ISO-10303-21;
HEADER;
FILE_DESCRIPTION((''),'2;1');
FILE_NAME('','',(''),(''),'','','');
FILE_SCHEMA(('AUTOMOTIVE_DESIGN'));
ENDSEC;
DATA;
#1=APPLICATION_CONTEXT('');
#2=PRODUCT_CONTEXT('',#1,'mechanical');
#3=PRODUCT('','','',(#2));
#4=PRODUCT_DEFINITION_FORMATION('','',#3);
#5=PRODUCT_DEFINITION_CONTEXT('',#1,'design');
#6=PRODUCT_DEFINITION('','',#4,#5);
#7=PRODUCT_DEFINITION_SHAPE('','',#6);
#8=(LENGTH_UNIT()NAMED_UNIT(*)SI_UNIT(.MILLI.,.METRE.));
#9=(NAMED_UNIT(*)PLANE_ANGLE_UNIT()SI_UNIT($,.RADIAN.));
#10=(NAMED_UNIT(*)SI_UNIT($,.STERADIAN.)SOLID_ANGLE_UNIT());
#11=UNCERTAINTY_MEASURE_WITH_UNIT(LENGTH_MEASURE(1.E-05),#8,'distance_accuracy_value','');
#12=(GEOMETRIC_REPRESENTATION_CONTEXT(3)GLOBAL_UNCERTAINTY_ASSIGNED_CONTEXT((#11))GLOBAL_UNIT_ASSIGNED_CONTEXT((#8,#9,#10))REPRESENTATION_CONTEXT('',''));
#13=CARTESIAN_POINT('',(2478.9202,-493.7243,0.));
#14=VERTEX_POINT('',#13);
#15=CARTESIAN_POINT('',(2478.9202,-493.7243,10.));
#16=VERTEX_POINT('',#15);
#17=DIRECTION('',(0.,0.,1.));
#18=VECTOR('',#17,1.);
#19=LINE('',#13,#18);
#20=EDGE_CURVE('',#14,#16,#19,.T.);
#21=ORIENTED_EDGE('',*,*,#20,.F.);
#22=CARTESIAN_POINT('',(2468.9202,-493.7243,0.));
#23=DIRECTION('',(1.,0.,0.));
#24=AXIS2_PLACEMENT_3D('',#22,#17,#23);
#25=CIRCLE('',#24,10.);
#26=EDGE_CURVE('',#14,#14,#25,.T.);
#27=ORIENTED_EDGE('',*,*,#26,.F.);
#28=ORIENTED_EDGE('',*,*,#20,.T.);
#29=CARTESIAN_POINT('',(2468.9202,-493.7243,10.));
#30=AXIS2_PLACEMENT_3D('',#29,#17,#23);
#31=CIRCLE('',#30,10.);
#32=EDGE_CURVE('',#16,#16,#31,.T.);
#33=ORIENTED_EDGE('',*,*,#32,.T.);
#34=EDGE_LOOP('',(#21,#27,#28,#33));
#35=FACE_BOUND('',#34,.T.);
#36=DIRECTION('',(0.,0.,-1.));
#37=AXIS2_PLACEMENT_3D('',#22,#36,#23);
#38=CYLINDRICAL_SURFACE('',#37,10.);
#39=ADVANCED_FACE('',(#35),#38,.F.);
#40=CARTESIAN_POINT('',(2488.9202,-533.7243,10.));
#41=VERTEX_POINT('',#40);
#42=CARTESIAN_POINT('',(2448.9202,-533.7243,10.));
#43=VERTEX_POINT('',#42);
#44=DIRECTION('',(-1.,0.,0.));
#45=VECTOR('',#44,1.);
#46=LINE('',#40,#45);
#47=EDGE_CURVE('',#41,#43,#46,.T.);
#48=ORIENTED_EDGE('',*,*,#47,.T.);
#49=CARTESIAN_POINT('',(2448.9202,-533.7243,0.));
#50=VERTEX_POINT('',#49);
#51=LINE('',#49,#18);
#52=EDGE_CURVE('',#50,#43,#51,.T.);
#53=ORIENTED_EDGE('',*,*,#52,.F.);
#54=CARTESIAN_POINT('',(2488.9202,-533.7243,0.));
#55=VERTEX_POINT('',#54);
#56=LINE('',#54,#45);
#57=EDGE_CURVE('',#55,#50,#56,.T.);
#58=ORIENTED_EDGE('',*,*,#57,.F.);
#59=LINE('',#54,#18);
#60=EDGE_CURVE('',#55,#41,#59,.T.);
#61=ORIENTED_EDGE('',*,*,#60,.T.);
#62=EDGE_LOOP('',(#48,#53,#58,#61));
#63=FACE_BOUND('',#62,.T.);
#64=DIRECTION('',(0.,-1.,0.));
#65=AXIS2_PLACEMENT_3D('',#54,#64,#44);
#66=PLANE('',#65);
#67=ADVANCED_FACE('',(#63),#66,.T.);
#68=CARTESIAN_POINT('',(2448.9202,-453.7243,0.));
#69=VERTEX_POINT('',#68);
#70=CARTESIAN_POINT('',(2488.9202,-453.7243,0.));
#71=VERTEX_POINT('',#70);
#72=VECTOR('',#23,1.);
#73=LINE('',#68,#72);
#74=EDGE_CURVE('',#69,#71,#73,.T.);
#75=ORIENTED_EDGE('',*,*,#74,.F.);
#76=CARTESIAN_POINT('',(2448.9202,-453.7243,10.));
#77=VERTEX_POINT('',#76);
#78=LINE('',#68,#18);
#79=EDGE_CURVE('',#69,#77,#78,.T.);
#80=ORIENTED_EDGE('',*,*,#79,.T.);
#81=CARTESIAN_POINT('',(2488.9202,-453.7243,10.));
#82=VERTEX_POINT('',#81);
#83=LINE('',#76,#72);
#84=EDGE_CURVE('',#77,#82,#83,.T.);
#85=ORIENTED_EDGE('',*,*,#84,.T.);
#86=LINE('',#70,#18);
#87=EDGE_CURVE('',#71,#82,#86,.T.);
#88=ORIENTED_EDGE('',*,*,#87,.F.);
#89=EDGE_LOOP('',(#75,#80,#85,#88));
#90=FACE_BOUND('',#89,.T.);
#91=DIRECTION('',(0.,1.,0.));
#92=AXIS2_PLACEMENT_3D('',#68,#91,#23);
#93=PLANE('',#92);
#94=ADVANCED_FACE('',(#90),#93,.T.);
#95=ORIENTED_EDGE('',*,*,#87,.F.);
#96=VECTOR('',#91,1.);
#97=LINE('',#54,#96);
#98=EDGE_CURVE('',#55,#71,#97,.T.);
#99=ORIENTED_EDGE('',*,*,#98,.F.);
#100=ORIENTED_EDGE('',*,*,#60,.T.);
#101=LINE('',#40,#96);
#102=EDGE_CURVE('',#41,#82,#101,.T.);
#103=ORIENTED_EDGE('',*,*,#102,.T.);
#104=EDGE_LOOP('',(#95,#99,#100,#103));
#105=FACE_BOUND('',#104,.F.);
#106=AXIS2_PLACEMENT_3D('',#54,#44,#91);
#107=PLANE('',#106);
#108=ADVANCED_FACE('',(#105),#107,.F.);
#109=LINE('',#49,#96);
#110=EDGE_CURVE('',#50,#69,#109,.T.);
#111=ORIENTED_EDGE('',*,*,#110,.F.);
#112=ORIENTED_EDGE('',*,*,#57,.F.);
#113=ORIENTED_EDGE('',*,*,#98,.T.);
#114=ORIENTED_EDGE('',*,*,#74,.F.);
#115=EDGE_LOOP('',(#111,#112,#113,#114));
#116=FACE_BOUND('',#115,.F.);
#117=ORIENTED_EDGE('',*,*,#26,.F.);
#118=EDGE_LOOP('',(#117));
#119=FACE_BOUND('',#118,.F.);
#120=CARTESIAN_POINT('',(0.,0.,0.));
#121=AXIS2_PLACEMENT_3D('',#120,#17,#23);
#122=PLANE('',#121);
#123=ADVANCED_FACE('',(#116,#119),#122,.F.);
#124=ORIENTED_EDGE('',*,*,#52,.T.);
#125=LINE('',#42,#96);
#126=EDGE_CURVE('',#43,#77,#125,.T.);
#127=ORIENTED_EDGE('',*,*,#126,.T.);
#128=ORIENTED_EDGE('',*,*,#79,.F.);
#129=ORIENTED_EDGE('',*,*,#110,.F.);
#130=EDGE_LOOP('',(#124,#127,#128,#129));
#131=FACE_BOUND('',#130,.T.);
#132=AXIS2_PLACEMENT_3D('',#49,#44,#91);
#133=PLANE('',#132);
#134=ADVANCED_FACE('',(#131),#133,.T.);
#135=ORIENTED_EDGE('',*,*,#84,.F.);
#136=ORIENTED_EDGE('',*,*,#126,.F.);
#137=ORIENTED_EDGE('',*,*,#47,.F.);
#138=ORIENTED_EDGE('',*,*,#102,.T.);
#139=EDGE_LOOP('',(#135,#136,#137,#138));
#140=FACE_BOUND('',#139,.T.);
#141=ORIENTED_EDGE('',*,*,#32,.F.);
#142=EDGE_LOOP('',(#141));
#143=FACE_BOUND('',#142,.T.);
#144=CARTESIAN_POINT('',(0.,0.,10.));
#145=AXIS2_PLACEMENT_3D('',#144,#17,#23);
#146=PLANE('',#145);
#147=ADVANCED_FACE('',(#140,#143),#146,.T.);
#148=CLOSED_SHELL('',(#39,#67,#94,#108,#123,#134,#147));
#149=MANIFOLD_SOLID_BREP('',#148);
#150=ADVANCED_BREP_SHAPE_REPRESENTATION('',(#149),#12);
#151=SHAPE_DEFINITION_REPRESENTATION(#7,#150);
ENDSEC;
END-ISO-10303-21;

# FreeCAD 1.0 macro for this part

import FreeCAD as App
import Part
import Sketcher
from FreeCAD import Vector
Q = App.Units.Quantity

doc = App.newDocument("Part")
params = doc.addObject("Spreadsheet::Sheet", "Params")
for row, (alias, value) in enumerate([
    ("sketch1_diameter", "20 mm"),
    ("sketch1_width", "40 mm"),
    ("sketch1_height", "80 mm"),
    ("pad1_length", "10 mm"),
], start=1):
    params.set(f"A{row}", alias)
    params.set(f"B{row}", "=" + value)
    params.setAlias(f"B{row}", alias)

body = doc.addObject("PartDesign::Body", "Body")

sketch1 = body.newObject("Sketcher::SketchObject", "Sketch")
sketch1.AttachmentSupport = (doc.getObject("XY_Plane"), [""])
sketch1.MapMode = "FlatFace"
sketch1.addGeometry([
    Part.LineSegment(Vector(2448.9202, -533.7243, 0), Vector(2488.9202, -533.7243, 0)),
    Part.LineSegment(Vector(2488.9202, -533.7243, 0), Vector(2488.9202, -453.7243, 0)),
    Part.LineSegment(Vector(2488.9202, -453.7243, 0), Vector(2448.9202, -453.7243, 0)),
    Part.LineSegment(Vector(2448.9202, -453.7243, 0), Vector(2448.9202, -533.7243, 0)),
    Part.Circle(Vector(2468.9202, -493.7243, 0), Vector(0, 0, 1), 10),
], False)
sketch1.addConstraint([
    Sketcher.Constraint("Coincident", 0, 2, 1, 1),
    Sketcher.Constraint("Coincident", 1, 2, 2, 1),
    Sketcher.Constraint("Coincident", 2, 2, 3, 1),
    Sketcher.Constraint("Coincident", 3, 2, 0, 1),
    Sketcher.Constraint("Horizontal", 0),
    Sketcher.Constraint("Vertical", 1),
    Sketcher.Constraint("Horizontal", 2),
    Sketcher.Constraint("Vertical", 3),
    Sketcher.Constraint("Diameter", 4, Q("20 mm")),
    Sketcher.Constraint("DistanceX", 0, 1, 0, 2, Q("40 mm")),
    Sketcher.Constraint("DistanceY", 1, 1, 1, 2, Q("80 mm")),
    Sketcher.Constraint("DistanceX", 4, 3, 0, 2, Q("20 mm")),
    Sketcher.Constraint("DistanceY", 0, 2, 4, 3, Q("40 mm")),
    Sketcher.Constraint("DistanceX", -1, 1, 4, 3, Q("2468.9202 mm")),
    Sketcher.Constraint("DistanceY", 4, 3, -1, 1, Q("493.7243 mm")),
])
sketch1.setExpression("Constraints[8]", "Params.sketch1_diameter")
sketch1.setExpression("Constraints[9]", "Params.sketch1_width")
sketch1.setExpression("Constraints[10]", "Params.sketch1_height")
pad1 = body.newObject("PartDesign::Pad", "Pad")
pad1.Profile = sketch1
pad1.setExpression("Length", "Params.pad1_length")

doc.recompute()
